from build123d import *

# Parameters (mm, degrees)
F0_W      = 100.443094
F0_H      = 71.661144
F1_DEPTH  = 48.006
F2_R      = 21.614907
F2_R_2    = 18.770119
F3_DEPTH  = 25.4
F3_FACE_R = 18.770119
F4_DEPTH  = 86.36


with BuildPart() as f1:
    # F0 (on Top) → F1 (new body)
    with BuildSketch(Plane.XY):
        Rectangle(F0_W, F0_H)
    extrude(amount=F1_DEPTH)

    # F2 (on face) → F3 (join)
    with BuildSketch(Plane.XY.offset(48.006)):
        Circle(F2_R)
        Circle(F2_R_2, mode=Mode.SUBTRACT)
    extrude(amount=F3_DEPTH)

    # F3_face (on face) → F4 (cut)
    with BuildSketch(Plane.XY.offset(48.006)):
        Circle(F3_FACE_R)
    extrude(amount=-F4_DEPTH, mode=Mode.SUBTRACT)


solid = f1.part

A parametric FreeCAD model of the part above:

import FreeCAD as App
import Part
import Sketcher

V = App.Vector
Q = App.Units.Quantity

doc = App.newDocument("Part")
body = doc.addObject("PartDesign::Body", "Body")

sketch1 = doc.addObject("Sketcher::SketchObject", "Sketch")
body.addObject(sketch1)
sketch1.AttachmentSupport = (doc.XY_Plane, [""])
sketch1.MapMode = "FlatFace"
sketch1.addGeometry(Part.LineSegment(V(-50, 36, 0), V(-50, -36, 0)), False)
sketch1.addGeometry(Part.LineSegment(V(-50, -36, 0), V(50, -36, 0)), False)
sketch1.addGeometry(Part.LineSegment(V(50, -36, 0), V(50, 36, 0)), False)
sketch1.addGeometry(Part.LineSegment(V(50, 36, 0), V(-50, 36, 0)), False)
sketch1.addConstraint(Sketcher.Constraint("Coincident", 0, 2, 1, 1))
sketch1.addConstraint(Sketcher.Constraint("Coincident", 1, 2, 2, 1))
sketch1.addConstraint(Sketcher.Constraint("Coincident", 2, 2, 3, 1))
sketch1.addConstraint(Sketcher.Constraint("Coincident", 3, 2, 0, 1))
sketch1.addConstraint(Sketcher.Constraint("Vertical", 0))
sketch1.addConstraint(Sketcher.Constraint("Horizontal", 1))
sketch1.addConstraint(Sketcher.Constraint("Vertical", 2))
sketch1.addConstraint(Sketcher.Constraint("Horizontal", 3))
sketch1.addConstraint(Sketcher.Constraint("Symmetric", 0, 2, 2, 2, -1, 1))
sketch1.addConstraint(Sketcher.Constraint("DistanceX", 1, 1, 1, 2, Q("100.443094 mm")))
sketch1.addConstraint(Sketcher.Constraint("DistanceY", 0, 2, 0, 1, Q("71.661144 mm")))
pad1 = doc.addObject("PartDesign::Pad", "Pad")
body.addObject(pad1)
pad1.Profile = sketch1
pad1.Length = Q("1.89 in")

sketch2 = doc.addObject("Sketcher::SketchObject", "Sketch001")
body.addObject(sketch2)
sketch2.AttachmentSupport = (doc.XY_Plane, [""])
sketch2.MapMode = "FlatFace"
sketch2.AttachmentOffset = App.Placement(V(0, 0, 1.89 * 25.4), App.Rotation())
sketch2.addGeometry(Part.Circle(V(0, 0, 0), V(0, 0, 1), 22), False)
sketch2.addGeometry(Part.Circle(V(0, 0, 0), V(0, 0, 1), 19), False)
sketch2.addConstraint(Sketcher.Constraint("Coincident", 0, 3, -1, 1))
sketch2.addConstraint(Sketcher.Constraint("Coincident", 1, 3, -1, 1))
sketch2.addConstraint(Sketcher.Constraint("Diameter", 1, Q("37.540238 mm")))
sketch2.addConstraint(Sketcher.Constraint("Diameter", 0, Q("43.229814 mm")))
pad2 = doc.addObject("PartDesign::Pad", "Pad001")
body.addObject(pad2)
pad2.Profile = sketch2
pad2.Length = Q("1 in")

sketch3 = doc.addObject("Sketcher::SketchObject", "Sketch002")
body.addObject(sketch3)
sketch3.AttachmentSupport = (doc.XY_Plane, [""])
sketch3.MapMode = "FlatFace"
sketch3.AttachmentOffset = App.Placement(V(0, 0, 1.89 * 25.4), App.Rotation())
sketch3.addGeometry(Part.Circle(V(0, 0, 0), V(0, 0, 1), 19), False)
sketch3.addConstraint(Sketcher.Constraint("Coincident", 0, 3, -1, 1))
sketch3.addConstraint(Sketcher.Constraint("Diameter", 0, Q("37.540238 mm")))
pocket1 = doc.addObject("PartDesign::Pocket", "Pocket")
body.addObject(pocket1)
pocket1.Profile = sketch3
pocket1.Length = Q("3.4 in")

doc.recompute()
